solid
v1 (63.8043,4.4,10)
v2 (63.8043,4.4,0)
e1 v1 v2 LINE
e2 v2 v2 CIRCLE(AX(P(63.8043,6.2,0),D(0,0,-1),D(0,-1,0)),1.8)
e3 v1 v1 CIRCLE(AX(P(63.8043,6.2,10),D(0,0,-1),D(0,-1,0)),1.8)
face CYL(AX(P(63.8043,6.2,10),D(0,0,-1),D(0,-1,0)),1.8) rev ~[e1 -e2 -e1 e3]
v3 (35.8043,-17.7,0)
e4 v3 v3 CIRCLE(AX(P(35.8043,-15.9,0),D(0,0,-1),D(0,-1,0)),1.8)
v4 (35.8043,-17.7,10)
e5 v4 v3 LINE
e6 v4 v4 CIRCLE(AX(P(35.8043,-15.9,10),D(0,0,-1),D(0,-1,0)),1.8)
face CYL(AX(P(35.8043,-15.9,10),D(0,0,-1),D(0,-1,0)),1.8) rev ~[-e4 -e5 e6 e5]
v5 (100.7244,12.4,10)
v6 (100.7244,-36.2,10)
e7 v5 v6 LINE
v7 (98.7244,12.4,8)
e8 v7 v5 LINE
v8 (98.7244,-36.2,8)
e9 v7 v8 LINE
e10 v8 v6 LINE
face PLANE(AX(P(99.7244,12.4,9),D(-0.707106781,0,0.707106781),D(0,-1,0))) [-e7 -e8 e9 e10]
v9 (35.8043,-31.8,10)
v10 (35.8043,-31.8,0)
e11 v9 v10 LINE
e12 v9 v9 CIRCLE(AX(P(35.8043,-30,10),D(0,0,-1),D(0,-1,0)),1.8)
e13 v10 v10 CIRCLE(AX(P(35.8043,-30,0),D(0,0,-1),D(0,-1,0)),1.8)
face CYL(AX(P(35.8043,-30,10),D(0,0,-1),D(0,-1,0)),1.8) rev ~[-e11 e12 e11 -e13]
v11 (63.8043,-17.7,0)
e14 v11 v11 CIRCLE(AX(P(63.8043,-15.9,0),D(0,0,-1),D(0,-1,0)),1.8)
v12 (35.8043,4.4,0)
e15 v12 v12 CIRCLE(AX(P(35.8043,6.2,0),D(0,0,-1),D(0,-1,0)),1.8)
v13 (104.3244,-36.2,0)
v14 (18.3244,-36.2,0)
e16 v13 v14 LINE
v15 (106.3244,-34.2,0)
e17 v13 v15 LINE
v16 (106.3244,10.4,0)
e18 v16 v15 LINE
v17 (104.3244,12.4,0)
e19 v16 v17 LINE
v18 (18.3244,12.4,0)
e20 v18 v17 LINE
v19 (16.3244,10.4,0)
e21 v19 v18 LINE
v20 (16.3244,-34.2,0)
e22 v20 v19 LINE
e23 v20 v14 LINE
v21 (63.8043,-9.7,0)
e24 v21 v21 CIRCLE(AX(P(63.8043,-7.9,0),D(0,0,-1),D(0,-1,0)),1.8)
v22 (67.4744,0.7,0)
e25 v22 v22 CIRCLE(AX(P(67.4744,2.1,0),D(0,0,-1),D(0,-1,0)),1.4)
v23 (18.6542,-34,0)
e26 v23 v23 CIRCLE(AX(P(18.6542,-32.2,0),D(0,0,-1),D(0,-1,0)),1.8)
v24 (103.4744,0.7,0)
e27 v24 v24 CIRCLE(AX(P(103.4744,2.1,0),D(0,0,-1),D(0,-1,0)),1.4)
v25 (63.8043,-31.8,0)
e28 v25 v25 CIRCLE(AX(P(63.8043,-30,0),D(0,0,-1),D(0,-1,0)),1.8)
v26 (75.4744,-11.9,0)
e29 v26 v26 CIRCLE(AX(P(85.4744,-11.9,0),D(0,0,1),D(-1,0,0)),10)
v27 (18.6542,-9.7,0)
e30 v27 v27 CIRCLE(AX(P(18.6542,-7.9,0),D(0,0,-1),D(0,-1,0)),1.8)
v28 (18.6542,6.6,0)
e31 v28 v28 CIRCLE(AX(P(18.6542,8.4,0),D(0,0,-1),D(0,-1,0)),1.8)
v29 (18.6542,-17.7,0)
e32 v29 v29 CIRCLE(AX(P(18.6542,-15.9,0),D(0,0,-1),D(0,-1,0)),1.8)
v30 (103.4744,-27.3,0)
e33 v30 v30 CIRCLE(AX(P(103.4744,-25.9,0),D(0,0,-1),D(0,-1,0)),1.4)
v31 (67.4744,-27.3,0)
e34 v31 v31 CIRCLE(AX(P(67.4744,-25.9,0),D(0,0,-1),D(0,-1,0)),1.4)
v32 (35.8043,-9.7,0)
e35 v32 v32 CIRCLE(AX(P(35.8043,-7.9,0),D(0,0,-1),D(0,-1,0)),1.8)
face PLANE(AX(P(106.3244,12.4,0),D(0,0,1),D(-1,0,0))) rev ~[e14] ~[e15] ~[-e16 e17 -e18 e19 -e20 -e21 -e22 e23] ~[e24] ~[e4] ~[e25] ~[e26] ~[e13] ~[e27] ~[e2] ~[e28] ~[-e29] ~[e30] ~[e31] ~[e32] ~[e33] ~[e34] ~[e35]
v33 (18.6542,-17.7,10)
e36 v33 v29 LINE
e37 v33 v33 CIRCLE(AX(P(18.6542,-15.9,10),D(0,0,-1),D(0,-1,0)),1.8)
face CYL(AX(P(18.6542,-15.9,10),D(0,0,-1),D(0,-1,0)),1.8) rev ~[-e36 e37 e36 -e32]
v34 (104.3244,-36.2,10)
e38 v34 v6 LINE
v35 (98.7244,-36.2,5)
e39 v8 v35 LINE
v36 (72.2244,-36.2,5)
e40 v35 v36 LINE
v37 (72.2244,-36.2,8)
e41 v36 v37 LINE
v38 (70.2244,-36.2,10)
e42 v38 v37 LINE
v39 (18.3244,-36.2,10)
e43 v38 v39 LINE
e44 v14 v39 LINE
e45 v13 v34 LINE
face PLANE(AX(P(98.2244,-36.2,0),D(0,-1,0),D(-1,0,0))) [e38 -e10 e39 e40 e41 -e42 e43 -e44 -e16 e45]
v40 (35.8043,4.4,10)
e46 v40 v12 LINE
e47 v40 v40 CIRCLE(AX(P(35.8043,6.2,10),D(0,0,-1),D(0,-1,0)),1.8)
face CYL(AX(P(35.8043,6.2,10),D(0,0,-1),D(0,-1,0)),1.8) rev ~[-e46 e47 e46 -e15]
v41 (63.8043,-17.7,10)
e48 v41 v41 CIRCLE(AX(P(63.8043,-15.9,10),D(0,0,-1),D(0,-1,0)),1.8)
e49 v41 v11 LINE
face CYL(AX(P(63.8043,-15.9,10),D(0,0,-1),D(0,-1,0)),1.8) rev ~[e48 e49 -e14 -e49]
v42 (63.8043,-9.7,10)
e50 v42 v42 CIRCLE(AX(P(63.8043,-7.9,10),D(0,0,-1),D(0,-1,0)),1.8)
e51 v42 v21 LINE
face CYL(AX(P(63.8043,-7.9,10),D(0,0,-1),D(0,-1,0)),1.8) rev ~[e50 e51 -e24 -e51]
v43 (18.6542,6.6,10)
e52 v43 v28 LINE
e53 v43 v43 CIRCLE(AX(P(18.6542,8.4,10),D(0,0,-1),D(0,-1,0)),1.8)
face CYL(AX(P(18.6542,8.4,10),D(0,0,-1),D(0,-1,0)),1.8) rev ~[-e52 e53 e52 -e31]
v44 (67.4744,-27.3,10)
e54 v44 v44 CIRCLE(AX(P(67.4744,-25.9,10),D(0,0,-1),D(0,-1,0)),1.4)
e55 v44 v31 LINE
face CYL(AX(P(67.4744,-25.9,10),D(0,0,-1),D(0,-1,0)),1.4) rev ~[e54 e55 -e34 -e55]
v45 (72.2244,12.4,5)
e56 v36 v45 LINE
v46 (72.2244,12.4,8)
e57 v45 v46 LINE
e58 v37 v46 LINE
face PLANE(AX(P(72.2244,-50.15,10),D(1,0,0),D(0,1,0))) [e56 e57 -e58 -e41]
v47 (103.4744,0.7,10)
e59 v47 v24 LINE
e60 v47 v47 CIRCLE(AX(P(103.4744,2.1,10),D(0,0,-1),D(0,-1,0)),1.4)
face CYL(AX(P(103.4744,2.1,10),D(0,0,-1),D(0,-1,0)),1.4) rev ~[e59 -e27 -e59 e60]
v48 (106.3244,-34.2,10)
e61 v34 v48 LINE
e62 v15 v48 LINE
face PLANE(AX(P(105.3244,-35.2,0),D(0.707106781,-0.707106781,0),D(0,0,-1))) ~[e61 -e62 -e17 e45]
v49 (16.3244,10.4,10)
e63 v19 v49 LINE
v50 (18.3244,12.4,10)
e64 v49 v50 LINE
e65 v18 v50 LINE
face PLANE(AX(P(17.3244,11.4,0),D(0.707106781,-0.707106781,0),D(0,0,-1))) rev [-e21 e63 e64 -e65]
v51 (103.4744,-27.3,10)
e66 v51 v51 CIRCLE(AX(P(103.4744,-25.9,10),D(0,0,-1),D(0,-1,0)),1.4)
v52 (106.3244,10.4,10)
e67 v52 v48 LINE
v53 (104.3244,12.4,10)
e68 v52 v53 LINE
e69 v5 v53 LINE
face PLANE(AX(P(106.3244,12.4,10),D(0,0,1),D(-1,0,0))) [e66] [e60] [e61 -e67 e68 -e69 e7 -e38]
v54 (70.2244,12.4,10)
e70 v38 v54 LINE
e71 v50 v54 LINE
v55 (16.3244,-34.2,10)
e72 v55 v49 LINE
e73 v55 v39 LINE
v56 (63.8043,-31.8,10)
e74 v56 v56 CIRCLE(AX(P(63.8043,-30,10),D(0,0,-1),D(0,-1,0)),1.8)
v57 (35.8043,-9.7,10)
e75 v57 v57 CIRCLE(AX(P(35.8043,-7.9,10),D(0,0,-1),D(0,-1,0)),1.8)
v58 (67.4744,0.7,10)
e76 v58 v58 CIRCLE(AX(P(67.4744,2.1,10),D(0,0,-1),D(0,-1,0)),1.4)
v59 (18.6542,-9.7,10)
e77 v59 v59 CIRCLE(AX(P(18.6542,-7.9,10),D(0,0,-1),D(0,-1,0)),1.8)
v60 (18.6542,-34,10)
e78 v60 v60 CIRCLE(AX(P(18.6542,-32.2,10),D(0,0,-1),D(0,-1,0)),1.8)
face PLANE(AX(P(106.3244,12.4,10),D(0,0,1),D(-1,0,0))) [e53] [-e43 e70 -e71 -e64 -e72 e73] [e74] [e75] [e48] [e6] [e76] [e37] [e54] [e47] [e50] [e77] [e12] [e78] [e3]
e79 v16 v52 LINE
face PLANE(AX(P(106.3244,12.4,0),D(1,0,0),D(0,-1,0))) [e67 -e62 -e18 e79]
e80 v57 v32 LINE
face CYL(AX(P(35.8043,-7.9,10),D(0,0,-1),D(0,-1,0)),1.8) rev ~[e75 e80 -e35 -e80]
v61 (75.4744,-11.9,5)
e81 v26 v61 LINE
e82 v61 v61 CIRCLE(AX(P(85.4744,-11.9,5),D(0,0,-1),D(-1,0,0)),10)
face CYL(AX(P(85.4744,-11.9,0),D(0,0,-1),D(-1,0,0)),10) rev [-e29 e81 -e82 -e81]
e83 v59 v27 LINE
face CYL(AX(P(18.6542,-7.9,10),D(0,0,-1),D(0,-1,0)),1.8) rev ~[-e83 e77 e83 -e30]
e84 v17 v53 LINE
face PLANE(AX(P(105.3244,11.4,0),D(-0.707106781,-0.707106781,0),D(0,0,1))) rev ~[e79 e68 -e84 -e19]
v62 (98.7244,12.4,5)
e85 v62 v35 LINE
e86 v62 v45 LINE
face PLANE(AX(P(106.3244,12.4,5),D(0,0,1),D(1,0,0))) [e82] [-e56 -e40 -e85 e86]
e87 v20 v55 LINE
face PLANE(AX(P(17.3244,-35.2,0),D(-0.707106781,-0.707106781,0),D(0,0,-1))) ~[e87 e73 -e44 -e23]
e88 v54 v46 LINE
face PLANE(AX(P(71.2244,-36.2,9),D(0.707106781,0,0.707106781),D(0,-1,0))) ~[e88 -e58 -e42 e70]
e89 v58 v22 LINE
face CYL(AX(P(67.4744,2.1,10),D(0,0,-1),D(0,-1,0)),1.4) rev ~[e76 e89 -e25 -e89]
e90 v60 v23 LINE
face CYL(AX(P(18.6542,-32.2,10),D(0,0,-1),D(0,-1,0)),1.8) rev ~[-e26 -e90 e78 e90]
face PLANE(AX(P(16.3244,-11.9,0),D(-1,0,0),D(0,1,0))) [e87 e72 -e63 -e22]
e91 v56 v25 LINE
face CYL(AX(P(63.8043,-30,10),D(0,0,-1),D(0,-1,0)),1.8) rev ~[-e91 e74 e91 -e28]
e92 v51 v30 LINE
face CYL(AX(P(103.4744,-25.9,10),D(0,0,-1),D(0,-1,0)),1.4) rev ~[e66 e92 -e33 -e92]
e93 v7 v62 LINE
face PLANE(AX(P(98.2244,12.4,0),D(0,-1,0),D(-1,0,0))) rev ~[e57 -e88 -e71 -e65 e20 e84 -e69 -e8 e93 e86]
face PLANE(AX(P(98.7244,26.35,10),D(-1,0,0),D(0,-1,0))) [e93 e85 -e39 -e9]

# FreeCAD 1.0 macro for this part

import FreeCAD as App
import Part
import Sketcher
from FreeCAD import Vector
Q = App.Units.Quantity


def edges_at(feature, points):
    """Names of the edges that pass closest to the given points."""
    edges = feature.Shape.Edges
    near = lambda p: min(range(len(edges)), key=lambda i: edges[i].distToShape(Part.Vertex(*p))[0])
    return sorted({f"Edge{near(p) + 1}" for p in points})

doc = App.newDocument("Part")
body = doc.addObject("PartDesign::Body", "Body")

# Sketch on XY plane
sketch1 = body.newObject("Sketcher::SketchObject", "Sketch")
sketch1.AttachmentSupport = (doc.getObject("XY_Plane"), [""])
sketch1.MapMode = "FlatFace"
sketch1.addGeometry([
    Part.LineSegment(Vector(16.3, 12.4, 0), Vector(16.3, -36.2, 0)),  # 0
    Part.LineSegment(Vector(16.3, -36.2, 0), Vector(106.3, -36.2, 0)),  # 1
    Part.LineSegment(Vector(106.3, -36.2, 0), Vector(106.3, 12.4, 0)),  # 2
    Part.LineSegment(Vector(106.3, 12.4, 0), Vector(16.3, 12.4, 0)),  # 3
    Part.Circle(Vector(35.8, -7.9, 0), Vector(0, 0, 1), 1.4),  # 4
    Part.Circle(Vector(85.5, -11.9, 0), Vector(0, 0, 1), 10),  # 5
    Part.Circle(Vector(18.7, -7.9, 0), Vector(0, 0, 1), 1.4),  # 6
    Part.Circle(Vector(63.8, 6.2, 0), Vector(0, 0, 1), 1.4),  # 7
    Part.Circle(Vector(63.8, -7.9, 0), Vector(0, 0, 1), 1.4),  # 8
    Part.Circle(Vector(18.7, 8.4, 0), Vector(0, 0, 1), 1.4),  # 9
    Part.Circle(Vector(35.8, 6.2, 0), Vector(0, 0, 1), 1.4),  # 10
    Part.Circle(Vector(35.8, -30, 0), Vector(0, 0, 1), 1.4),  # 11
    Part.Circle(Vector(18.7, -32.2, 0), Vector(0, 0, 1), 1.4),  # 12
    Part.Circle(Vector(63.8, -15.9, 0), Vector(0, 0, 1), 1.4),  # 13
    Part.Circle(Vector(63.8, -30, 0), Vector(0, 0, 1), 1.4),  # 14
    Part.Circle(Vector(35.8, -15.9, 0), Vector(0, 0, 1), 1.4),  # 15
    Part.Circle(Vector(18.7, -15.9, 0), Vector(0, 0, 1), 1.4),  # 16
], False)
sketch1.addConstraint([
    Sketcher.Constraint("Coincident", 0, 2, 1, 1),
    Sketcher.Constraint("Coincident", 1, 2, 2, 1),
    Sketcher.Constraint("Coincident", 2, 2, 3, 1),
    Sketcher.Constraint("Coincident", 3, 2, 0, 1),
    Sketcher.Constraint("Vertical", 0),
    Sketcher.Constraint("Horizontal", 1),
    Sketcher.Constraint("Vertical", 2),
    Sketcher.Constraint("Horizontal", 3),
    Sketcher.Constraint("Equal", 4, 6),
    Sketcher.Constraint("Equal", 6, 7),
    Sketcher.Constraint("Equal", 7, 8),
    Sketcher.Constraint("Equal", 8, 9),
    Sketcher.Constraint("Equal", 9, 10),
    Sketcher.Constraint("Equal", 10, 11),
    Sketcher.Constraint("Equal", 11, 12),
    Sketcher.Constraint("Equal", 12, 13),
    Sketcher.Constraint("Equal", 13, 14),
    Sketcher.Constraint("Equal", 14, 15),
    Sketcher.Constraint("Equal", 15, 16),
    Sketcher.Constraint("Horizontal", 4, 3, 6, 3),
    Sketcher.Constraint("Horizontal", 6, 3, 8, 3),
    Sketcher.Constraint("Horizontal", 7, 3, 10, 3),
    Sketcher.Constraint("Horizontal", 11, 3, 14, 3),
    Sketcher.Constraint("Horizontal", 13, 3, 15, 3),
    Sketcher.Constraint("Horizontal", 15, 3, 16, 3),
    Sketcher.Constraint("Vertical", 7, 3, 8, 3),
    Sketcher.Constraint("Vertical", 6, 3, 9, 3),
    Sketcher.Constraint("Vertical", 4, 3, 10, 3),
    Sketcher.Constraint("Vertical", 10, 3, 11, 3),
    Sketcher.Constraint("Vertical", 9, 3, 12, 3),
    Sketcher.Constraint("Vertical", 8, 3, 13, 3),
    Sketcher.Constraint("Vertical", 13, 3, 14, 3),
    Sketcher.Constraint("Vertical", 11, 3, 15, 3),
    Sketcher.Constraint("Vertical", 12, 3, 16, 3),
    Sketcher.Constraint("Diameter", 5, Q("20 mm")),
    Sketcher.Constraint("Diameter", 4, Q("2.8 mm")),
    Sketcher.Constraint("DistanceX", 1, 1, 1, 2, Q("90 mm")),
    Sketcher.Constraint("DistanceY", 0, 2, 0, 1, Q("48.6 mm")),
    Sketcher.Constraint("DistanceY", 11, 3, -1, 1, Q("30 mm")),
    Sketcher.Constraint("DistanceY", 5, 3, 4, 3, Q("4 mm")),
    Sketcher.Constraint("DistanceX", 4, 3, 7, 3, Q("28 mm")),
    Sketcher.Constraint("DistanceY", 13, 3, 8, 3, Q("8 mm")),
    Sketcher.Constraint("DistanceY", 0, 2, 12, 3, Q("4 mm")),
    Sketcher.Constraint("DistanceY", 9, 3, 3, 2, Q("4 mm")),
    Sketcher.Constraint("DistanceY", 4, 3, -1, 1, Q("7.9 mm")),
    Sketcher.Constraint("DistanceY", -1, 1, 7, 3, Q("6.2 mm")),
    Sketcher.Constraint("DistanceY", -1, 1, 9, 3, Q("8.4 mm")),
    Sketcher.Constraint("DistanceX", 4, 3, 5, 3, Q("49.67 mm")),
    Sketcher.Constraint("DistanceX", 6, 3, 4, 3, Q("17.15 mm")),
    Sketcher.Constraint("DistanceX", 0, 2, 11, 3, Q("19.48 mm")),
    Sketcher.Constraint("DistanceX", -1, 1, 4, 3, Q("35.8043 mm")),
])
pad1 = body.newObject("PartDesign::Pad", "Pad")
pad1.Profile = sketch1
pad1.Length = 10

# Sketch on XY plane
sketch2 = body.newObject("Sketcher::SketchObject", "Sketch001")
sketch2.AttachmentSupport = (doc.getObject("XY_Plane"), [""])
sketch2.MapMode = "FlatFace"
sketch2.AttachmentOffset = App.Placement(Vector(0, 0, 10), App.Rotation())
sketch2.addGeometry([
    Part.LineSegment(Vector(72, 26, 0), Vector(72, -50, 0)),
    Part.LineSegment(Vector(72, -50, 0), Vector(99, -50, 0)),
    Part.LineSegment(Vector(99, -50, 0), Vector(99, 26, 0)),
    Part.LineSegment(Vector(99, 26, 0), Vector(72, 26, 0)),
], False)
sketch2.addConstraint([
    Sketcher.Constraint("Coincident", 0, 2, 1, 1),
    Sketcher.Constraint("Coincident", 1, 2, 2, 1),
    Sketcher.Constraint("Coincident", 2, 2, 3, 1),
    Sketcher.Constraint("Coincident", 3, 2, 0, 1),
    Sketcher.Constraint("Vertical", 0),
    Sketcher.Constraint("Horizontal", 1),
    Sketcher.Constraint("Vertical", 2),
    Sketcher.Constraint("Horizontal", 3),
    Sketcher.Constraint("DistanceX", 1, 1, 1, 2, Q("26.5 mm")),
    Sketcher.Constraint("DistanceY", 0, 2, 0, 1, Q("76.5 mm")),
    Sketcher.Constraint("DistanceY", 0, 2, -1, 1, Q("50.15 mm")),
    Sketcher.Constraint("DistanceX", -1, 1, 0, 2, Q("72.2244 mm")),
])
pocket1 = body.newObject("PartDesign::Pocket", "Pocket")
pocket1.Profile = sketch2
pocket1.Length = 5
doc.recompute()

chamfer = body.newObject("PartDesign::Chamfer", "Chamfer")
chamfer.Base = (pocket1, edges_at(pocket1, [
    (72.224, -11.9, 10),
    (98.724, -11.9, 10),
    (16.324, -36.2, 5),
    (16.324, 12.4, 5),
    (106.324, 12.4, 5),
    (106.324, -36.2, 5),
]))
chamfer.Size = 2

# Sketch on XY plane
sketch3 = body.newObject("Sketcher::SketchObject", "Sketch002")
sketch3.AttachmentSupport = (doc.getObject("XY_Plane"), [""])
sketch3.MapMode = "FlatFace"
sketch3.AttachmentOffset = App.Placement(Vector(0, 0, 10), App.Rotation())
sketch3.addGeometry([
    Part.Circle(Vector(18.7, 8.4, 0), Vector(0, 0, 1), 1.8),  # 0
    Part.Circle(Vector(18.7, -7.9, 0), Vector(0, 0, 1), 1.8),  # 1
    Part.Circle(Vector(18.7, -32.2, 0), Vector(0, 0, 1), 1.8),  # 2
    Part.Circle(Vector(18.7, -15.9, 0), Vector(0, 0, 1), 1.8),  # 3
    Part.Circle(Vector(35.8, -15.9, 0), Vector(0, 0, 1), 1.8),  # 4
    Part.Circle(Vector(35.8, -7.9, 0), Vector(0, 0, 1), 1.8),  # 5
    Part.Circle(Vector(35.8, -30, 0), Vector(0, 0, 1), 1.8),  # 6
    Part.Circle(Vector(63.8, -30, 0), Vector(0, 0, 1), 1.8),  # 7
    Part.Circle(Vector(63.8, -15.9, 0), Vector(0, 0, 1), 1.8),  # 8
    Part.Circle(Vector(63.8, -7.9, 0), Vector(0, 0, 1), 1.8),  # 9
    Part.Circle(Vector(63.8, 6.2, 0), Vector(0, 0, 1), 1.8),  # 10
    Part.Circle(Vector(35.8, 6.2, 0), Vector(0, 0, 1), 1.8),  # 11
], False)
sketch3.addConstraint([
    Sketcher.Constraint("Equal", 0, 1),
    Sketcher.Constraint("Equal", 1, 2),
    Sketcher.Constraint("Equal", 2, 3),
    Sketcher.Constraint("Equal", 3, 4),
    Sketcher.Constraint("Equal", 4, 5),
    Sketcher.Constraint("Equal", 5, 6),
    Sketcher.Constraint("Equal", 6, 7),
    Sketcher.Constraint("Equal", 7, 8),
    Sketcher.Constraint("Equal", 8, 9),
    Sketcher.Constraint("Equal", 9, 10),
    Sketcher.Constraint("Equal", 10, 11),
    Sketcher.Constraint("Horizontal", 3, 3, 4, 3),
    Sketcher.Constraint("Horizontal", 1, 3, 5, 3),
    Sketcher.Constraint("Horizontal", 6, 3, 7, 3),
    Sketcher.Constraint("Horizontal", 4, 3, 8, 3),
    Sketcher.Constraint("Horizontal", 5, 3, 9, 3),
    Sketcher.Constraint("Horizontal", 10, 3, 11, 3),
    Sketcher.Constraint("Vertical", 0, 3, 1, 3),
    Sketcher.Constraint("Vertical", 1, 3, 2, 3),
    Sketcher.Constraint("Vertical", 2, 3, 3, 3),
    Sketcher.Constraint("Vertical", 4, 3, 5, 3),
    Sketcher.Constraint("Vertical", 5, 3, 6, 3),
    Sketcher.Constraint("Vertical", 7, 3, 8, 3),
    Sketcher.Constraint("Vertical", 8, 3, 9, 3),
    Sketcher.Constraint("Vertical", 9, 3, 10, 3),
    Sketcher.Constraint("Vertical", 6, 3, 11, 3),
    Sketcher.Constraint("Diameter", 0, Q("3.6 mm")),
    Sketcher.Constraint("DistanceY", 6, 3, -1, 1, Q("30 mm")),
    Sketcher.Constraint("DistanceY", 3, 3, 1, 3, Q("8 mm")),
    Sketcher.Constraint("DistanceX", 6, 3, 7, 3, Q("28 mm")),
    Sketcher.Constraint("DistanceY", -1, 1, 0, 3, Q("8.4 mm")),
    Sketcher.Constraint("DistanceY", 1, 3, -1, 1, Q("7.9 mm")),
    Sketcher.Constraint("DistanceY", 2, 3, -1, 1, Q("32.2 mm")),
    Sketcher.Constraint("DistanceY", -1, 1, 10, 3, Q("6.2 mm")),
    Sketcher.Constraint("DistanceX", 3, 3, 4, 3, Q("17.15 mm")),
    Sketcher.Constraint("DistanceX", -1, 1, 0, 3, Q("18.6542 mm")),
])
doc.recompute()
hole = body.newObject("PartDesign::Hole", "Hole")
hole.Profile = sketch3
hole.ThreadType = "None"
hole.Diameter = 3.6
hole.DepthType = "Dimension"
hole.Depth = 15
hole.DrillPoint = "Angled"
hole.DrillPointAngle = 118

# Sketch on XY plane
sketch4 = body.newObject("Sketcher::SketchObject", "Sketch003")
sketch4.AttachmentSupport = (doc.getObject("XY_Plane"), [""])
sketch4.MapMode = "FlatFace"
sketch4.AttachmentOffset = App.Placement(Vector(0, 0, 10), App.Rotation())
sketch4.addGeometry([
    Part.Circle(Vector(67.5, 2.1, 0), Vector(0, 0, 1), 1.4),
    Part.Circle(Vector(67.5, -25.9, 0), Vector(0, 0, 1), 1.4),
    Part.Circle(Vector(103.5, 2.1, 0), Vector(0, 0, 1), 1.4),
    Part.Circle(Vector(103.5, -25.9, 0), Vector(0, 0, 1), 1.4),
], False)
sketch4.addConstraint([
    Sketcher.Constraint("Equal", 0, 1),
    Sketcher.Constraint("Equal", 1, 2),
    Sketcher.Constraint("Equal", 2, 3),
    Sketcher.Constraint("Horizontal", 0, 3, 2, 3),
    Sketcher.Constraint("Horizontal", 1, 3, 3, 3),
    Sketcher.Constraint("Vertical", 0, 3, 1, 3),
    Sketcher.Constraint("Vertical", 2, 3, 3, 3),
    Sketcher.Constraint("Diameter", 0, Q("2.8 mm")),
    Sketcher.Constraint("DistanceY", 1, 3, 0, 3, Q("28 mm")),
    Sketcher.Constraint("DistanceX", 0, 3, 2, 3, Q("36 mm")),
    Sketcher.Constraint("DistanceY", -1, 1, 0, 3, Q("2.1 mm")),
    Sketcher.Constraint("DistanceX", -1, 1, 0, 3, Q("67.4744 mm")),
])
doc.recompute()
hole2 = body.newObject("PartDesign::Hole", "Hole001")
hole2.Profile = sketch4
hole2.ThreadType = "None"
hole2.Diameter = 2.8
hole2.DepthType = "Dimension"
hole2.Depth = 15
hole2.DrillPoint = "Angled"
hole2.DrillPointAngle = 118

doc.recompute()
